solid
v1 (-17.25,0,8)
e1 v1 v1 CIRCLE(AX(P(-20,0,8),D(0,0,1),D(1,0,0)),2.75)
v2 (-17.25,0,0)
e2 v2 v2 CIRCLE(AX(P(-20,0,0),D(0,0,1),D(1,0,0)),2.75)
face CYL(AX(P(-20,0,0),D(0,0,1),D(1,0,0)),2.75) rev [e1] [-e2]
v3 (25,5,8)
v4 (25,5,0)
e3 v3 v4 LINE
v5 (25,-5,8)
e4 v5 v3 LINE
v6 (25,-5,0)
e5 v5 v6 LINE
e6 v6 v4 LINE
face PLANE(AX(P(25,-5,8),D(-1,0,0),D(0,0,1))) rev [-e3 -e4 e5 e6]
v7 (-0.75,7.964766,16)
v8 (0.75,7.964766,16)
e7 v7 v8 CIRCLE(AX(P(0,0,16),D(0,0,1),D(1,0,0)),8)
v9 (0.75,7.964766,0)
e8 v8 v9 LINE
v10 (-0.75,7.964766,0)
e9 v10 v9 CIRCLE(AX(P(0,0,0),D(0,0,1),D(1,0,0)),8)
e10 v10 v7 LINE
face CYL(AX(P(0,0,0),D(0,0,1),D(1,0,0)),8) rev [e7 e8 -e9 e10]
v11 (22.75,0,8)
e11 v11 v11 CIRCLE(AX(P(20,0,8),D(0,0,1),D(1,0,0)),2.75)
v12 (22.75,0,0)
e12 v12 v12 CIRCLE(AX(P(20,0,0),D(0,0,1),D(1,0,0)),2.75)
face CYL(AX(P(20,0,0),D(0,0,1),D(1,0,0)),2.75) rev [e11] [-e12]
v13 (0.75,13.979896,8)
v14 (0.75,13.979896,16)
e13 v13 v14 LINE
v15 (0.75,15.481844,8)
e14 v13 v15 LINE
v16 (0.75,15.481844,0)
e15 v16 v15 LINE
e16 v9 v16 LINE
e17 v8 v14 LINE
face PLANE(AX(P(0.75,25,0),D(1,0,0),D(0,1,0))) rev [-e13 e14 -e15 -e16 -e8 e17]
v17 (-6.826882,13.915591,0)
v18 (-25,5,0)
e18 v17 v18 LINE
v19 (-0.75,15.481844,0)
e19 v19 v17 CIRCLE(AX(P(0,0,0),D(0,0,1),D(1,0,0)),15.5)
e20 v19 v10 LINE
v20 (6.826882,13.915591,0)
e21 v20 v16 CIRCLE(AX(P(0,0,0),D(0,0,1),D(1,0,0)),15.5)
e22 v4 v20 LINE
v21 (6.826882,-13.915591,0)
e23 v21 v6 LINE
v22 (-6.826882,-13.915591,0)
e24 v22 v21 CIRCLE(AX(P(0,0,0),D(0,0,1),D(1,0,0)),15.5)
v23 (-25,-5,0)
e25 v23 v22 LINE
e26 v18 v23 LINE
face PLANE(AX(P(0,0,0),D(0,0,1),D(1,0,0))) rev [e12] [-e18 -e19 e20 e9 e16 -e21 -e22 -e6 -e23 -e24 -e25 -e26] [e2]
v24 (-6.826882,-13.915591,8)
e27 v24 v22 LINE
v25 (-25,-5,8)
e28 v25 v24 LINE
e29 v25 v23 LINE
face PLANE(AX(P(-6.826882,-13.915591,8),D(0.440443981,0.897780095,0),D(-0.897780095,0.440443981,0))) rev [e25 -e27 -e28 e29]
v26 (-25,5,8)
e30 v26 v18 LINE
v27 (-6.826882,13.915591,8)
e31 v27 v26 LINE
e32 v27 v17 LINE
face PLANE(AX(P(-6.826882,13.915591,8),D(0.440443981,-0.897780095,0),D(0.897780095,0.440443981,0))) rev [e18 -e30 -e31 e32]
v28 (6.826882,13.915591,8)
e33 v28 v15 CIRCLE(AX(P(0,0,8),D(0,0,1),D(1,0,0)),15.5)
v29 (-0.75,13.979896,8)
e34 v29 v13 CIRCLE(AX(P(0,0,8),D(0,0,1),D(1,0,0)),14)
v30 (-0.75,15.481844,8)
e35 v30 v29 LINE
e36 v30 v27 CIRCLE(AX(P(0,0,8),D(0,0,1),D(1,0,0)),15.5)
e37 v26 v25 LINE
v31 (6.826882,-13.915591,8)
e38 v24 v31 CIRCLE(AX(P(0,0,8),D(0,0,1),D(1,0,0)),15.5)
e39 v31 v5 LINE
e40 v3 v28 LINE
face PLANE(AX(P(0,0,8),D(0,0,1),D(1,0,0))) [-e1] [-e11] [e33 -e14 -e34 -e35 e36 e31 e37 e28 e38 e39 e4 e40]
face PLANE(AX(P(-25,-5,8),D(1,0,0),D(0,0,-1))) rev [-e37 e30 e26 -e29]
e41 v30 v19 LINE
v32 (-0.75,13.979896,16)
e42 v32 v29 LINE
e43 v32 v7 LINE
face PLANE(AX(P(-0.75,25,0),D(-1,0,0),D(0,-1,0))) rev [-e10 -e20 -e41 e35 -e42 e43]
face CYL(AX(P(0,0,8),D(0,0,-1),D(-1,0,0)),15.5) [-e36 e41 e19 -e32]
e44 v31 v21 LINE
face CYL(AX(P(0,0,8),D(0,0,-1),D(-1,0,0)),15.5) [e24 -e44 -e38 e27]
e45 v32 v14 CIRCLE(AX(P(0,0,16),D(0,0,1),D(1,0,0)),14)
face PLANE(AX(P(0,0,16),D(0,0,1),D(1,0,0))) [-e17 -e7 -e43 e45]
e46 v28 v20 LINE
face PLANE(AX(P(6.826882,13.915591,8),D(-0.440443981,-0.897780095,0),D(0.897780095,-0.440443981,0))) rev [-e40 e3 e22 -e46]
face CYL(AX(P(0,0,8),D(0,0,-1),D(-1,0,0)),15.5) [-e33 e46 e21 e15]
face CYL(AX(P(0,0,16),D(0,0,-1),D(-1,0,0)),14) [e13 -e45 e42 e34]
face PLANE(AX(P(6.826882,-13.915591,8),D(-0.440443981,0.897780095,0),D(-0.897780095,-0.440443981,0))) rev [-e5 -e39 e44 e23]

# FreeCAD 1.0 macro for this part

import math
import FreeCAD as App
import Part
import Sketcher

V = App.Vector

doc = App.newDocument("Part")
params = doc.addObject("Spreadsheet::Sheet", "Params")
for row, (alias, value) in enumerate([
    ("sketch1_radius", "15.5 mm"),
    ("sketch1_height", "10 mm"),
    ("pad1_length", "8 mm"),
    ("sketch2_diameter", "28 mm"),
    ("pad2_length", "8 mm"),
    ("sketch3_diameter", "16 mm"),
    ("sketch4_diameter", "5.5 mm"),
    ("sketch5_height", "20 mm"),
    ("sketch5_width", "1.5 mm"),
], start=1):
    params.set(f"A{row}", alias)
    params.set(f"B{row}", "=" + value)
    params.setAlias(f"B{row}", alias)

body = doc.addObject("PartDesign::Body", "Body")

# Sketch on XY plane
sketch1 = doc.addObject("Sketcher::SketchObject", "Sketch")
body.addObject(sketch1)
sketch1.AttachmentSupport = (doc.XY_Plane, [""])
sketch1.MapMode = "FlatFace"
sketch1.addGeometry([
    Part.LineSegment(V(-7, 14, 0), V(-25, 5, 0)),  # 0
    Part.LineSegment(V(-25, 5, 0), V(-25, -5, 0)),  # 1
    Part.LineSegment(V(-25, -5, 0), V(-7, -14, 0)),  # 2
    Part.ArcOfCircle(Part.Circle(V(0, 0, 0), V(0, 0, 1), 15), math.radians(-116), math.radians(-64)),  # 3
    Part.LineSegment(V(7, -14, 0), V(25, -5, 0)),  # 4
    Part.LineSegment(V(25, -5, 0), V(25, 5, 0)),  # 5
    Part.LineSegment(V(25, 5, 0), V(7, 14, 0)),  # 6
    Part.ArcOfCircle(Part.Circle(V(0, 0, 0), V(0, 0, 1), 15), math.radians(64), math.radians(116)),  # 7
], False)
sketch1.addConstraint([
    Sketcher.Constraint("Coincident", 0, 2, 1, 1),
    Sketcher.Constraint("Coincident", 1, 2, 2, 1),
    Sketcher.Constraint("Tangent", 2, 2, 3, 1),
    Sketcher.Constraint("Tangent", 3, 2, 4, 1),
    Sketcher.Constraint("Coincident", 4, 2, 5, 1),
    Sketcher.Constraint("Coincident", 5, 2, 6, 1),
    Sketcher.Constraint("Tangent", 6, 2, 7, 1),
    Sketcher.Constraint("Tangent", 7, 2, 0, 1),
    Sketcher.Constraint("Vertical", 1),
    Sketcher.Constraint("Vertical", 5),
    Sketcher.Constraint("Coincident", 3, 3, -1, 1),
    Sketcher.Constraint("Coincident", 7, 3, -1, 1),
    Sketcher.Constraint("Equal", 3, 7),
    Sketcher.Constraint("Symmetric", 0, 2, 4, 2, -1, 1),
    Sketcher.Constraint("Parallel", 2, 6),
    Sketcher.Constraint("Horizontal", 2, 2, 3, 2),
    Sketcher.Constraint("Radius", 3, 15.5),
    Sketcher.Constraint("DistanceY", 1, 2, 1, 1, 10.0),
    Sketcher.Constraint("DistanceX", 0, 2, -1, 1, 25.0),
])
sketch1.setExpression("Constraints[16]", "Params.sketch1_radius")
sketch1.setExpression("Constraints[17]", "Params.sketch1_height")
pad1 = doc.addObject("PartDesign::Pad", "Pad")
body.addObject(pad1)
pad1.Profile = sketch1
pad1.setExpression("Length", "Params.pad1_length")

# Sketch on XY plane
sketch2 = doc.addObject("Sketcher::SketchObject", "Sketch001")
body.addObject(sketch2)
sketch2.AttachmentSupport = (doc.XY_Plane, [""])
sketch2.MapMode = "FlatFace"
sketch2.AttachmentOffset = App.Placement(V(0, 0, 8), App.Rotation())
sketch2.addGeometry(Part.Circle(V(0, 0, 0), V(0, 0, 1), 14), False)
sketch2.addConstraint([
    Sketcher.Constraint("Coincident", 0, 3, -1, 1),
    Sketcher.Constraint("Diameter", 0, 28.0),
])
sketch2.setExpression("Constraints[1]", "Params.sketch2_diameter")
pad2 = doc.addObject("PartDesign::Pad", "Pad001")
body.addObject(pad2)
pad2.Profile = sketch2
pad2.setExpression("Length", "Params.pad2_length")

# Sketch on XY plane
sketch3 = doc.addObject("Sketcher::SketchObject", "Sketch002")
body.addObject(sketch3)
sketch3.AttachmentSupport = (doc.XY_Plane, [""])
sketch3.MapMode = "FlatFace"
sketch3.AttachmentOffset = App.Placement(V(0, 0, 16), App.Rotation())
sketch3.addGeometry(Part.Circle(V(0, 0, 0), V(0, 0, 1), 8), False)
sketch3.addConstraint([
    Sketcher.Constraint("Coincident", 0, 3, -1, 1),
    Sketcher.Constraint("Diameter", 0, 16.0),
])
sketch3.setExpression("Constraints[1]", "Params.sketch3_diameter")
pocket1 = doc.addObject("PartDesign::Pocket", "Pocket")
body.addObject(pocket1)
pocket1.Profile = sketch3
pocket1.Type = "ThroughAll"

# Sketch on XY plane
sketch4 = doc.addObject("Sketcher::SketchObject", "Sketch003")
body.addObject(sketch4)
sketch4.AttachmentSupport = (doc.XY_Plane, [""])
sketch4.MapMode = "FlatFace"
sketch4.AttachmentOffset = App.Placement(V(0, 0, 8), App.Rotation())
sketch4.addGeometry([
    Part.Circle(V(-20, 0, 0), V(0, 0, 1), 2.8),
    Part.Circle(V(20, 0, 0), V(0, 0, 1), 2.8),
], False)
sketch4.addConstraint([
    Sketcher.Constraint("Equal", 0, 1),
    Sketcher.Constraint("Symmetric", 0, 3, 1, 3, -1, 1),
    Sketcher.Constraint("PointOnObject", 0, 3, -1),
    Sketcher.Constraint("Diameter", 0, 5.5),
    Sketcher.Constraint("DistanceX", 0, 3, -1, 1, 20.0),
])
sketch4.setExpression("Constraints[3]", "Params.sketch4_diameter")
pocket2 = doc.addObject("PartDesign::Pocket", "Pocket001")
body.addObject(pocket2)
pocket2.Profile = sketch4
pocket2.Type = "ThroughAll"

# Sketch on XY plane
sketch5 = doc.addObject("Sketcher::SketchObject", "Sketch004")
body.addObject(sketch5)
sketch5.AttachmentSupport = (doc.XY_Plane, [""])
sketch5.MapMode = "FlatFace"
sketch5.AttachmentOffset = App.Placement(V(0, 0, 16), App.Rotation())
sketch5.addGeometry([
    Part.LineSegment(V(-0.8, 25, 0), V(-0.8, 5, 0)),
    Part.LineSegment(V(-0.8, 5, 0), V(0.8, 5, 0)),
    Part.LineSegment(V(0.8, 5, 0), V(0.8, 25, 0)),
    Part.LineSegment(V(0.8, 25, 0), V(-0.8, 25, 0)),
], False)
sketch5.addConstraint([
    Sketcher.Constraint("Coincident", 0, 2, 1, 1),
    Sketcher.Constraint("Coincident", 1, 2, 2, 1),
    Sketcher.Constraint("Coincident", 2, 2, 3, 1),
    Sketcher.Constraint("Coincident", 3, 2, 0, 1),
    Sketcher.Constraint("Vertical", 0),
    Sketcher.Constraint("Horizontal", 1),
    Sketcher.Constraint("Vertical", 2),
    Sketcher.Constraint("Horizontal", 3),
    Sketcher.Constraint("DistanceY", 0, 2, 0, 1, 20.0),
    Sketcher.Constraint("DistanceX", 1, 1, 1, 2, 1.5),
    Sketcher.Constraint("DistanceY", -1, 1, 0, 2, 5.0),
    Sketcher.Constraint("DistanceX", 0, 2, -1, 1, 0.75),
])
sketch5.setExpression("Constraints[8]", "Params.sketch5_height")
sketch5.setExpression("Constraints[9]", "Params.sketch5_width")
pocket3 = doc.addObject("PartDesign::Pocket", "Pocket002")
body.addObject(pocket3)
pocket3.Profile = sketch5
pocket3.Type = "ThroughAll"

doc.recompute()
